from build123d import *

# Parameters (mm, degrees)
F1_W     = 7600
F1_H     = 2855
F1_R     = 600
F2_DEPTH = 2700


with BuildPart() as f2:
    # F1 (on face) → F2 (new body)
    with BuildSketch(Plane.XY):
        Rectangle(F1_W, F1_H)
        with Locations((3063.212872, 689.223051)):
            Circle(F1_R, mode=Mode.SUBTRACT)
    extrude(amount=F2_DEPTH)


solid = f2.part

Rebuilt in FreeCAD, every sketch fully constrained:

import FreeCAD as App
import Part
import Sketcher

V = App.Vector

doc = App.newDocument("Part")
body = doc.addObject("PartDesign::Body", "Body")

sketch1 = body.newObject("Sketcher::SketchObject", "Sketch")
sketch1.AttachmentSupport = (doc.getObject("XY_Plane"), [""])
sketch1.MapMode = "FlatFace"
sketch1.addGeometry([
    Part.LineSegment(V(-3800, 1427.5, 0), V(-3800, -1427.5, 0)),
    Part.LineSegment(V(-3800, -1427.5, 0), V(3800, -1427.5, 0)),
    Part.LineSegment(V(3800, -1427.5, 0), V(3800, 1427.5, 0)),
    Part.LineSegment(V(3800, 1427.5, 0), V(-3800, 1427.5, 0)),
    Part.Circle(V(3063.212872, 689.223051, 0), V(0, 0, 1), 600),
], False)
sketch1.addConstraint([
    Sketcher.Constraint("Coincident", 0, 2, 1, 1),
    Sketcher.Constraint("Coincident", 1, 2, 2, 1),
    Sketcher.Constraint("Coincident", 2, 2, 3, 1),
    Sketcher.Constraint("Coincident", 3, 2, 0, 1),
    Sketcher.Constraint("Vertical", 0),
    Sketcher.Constraint("Horizontal", 1),
    Sketcher.Constraint("Vertical", 2),
    Sketcher.Constraint("Horizontal", 3),
    Sketcher.Constraint("Symmetric", 0, 2, 2, 2, -1, 1),
    Sketcher.Constraint("Diameter", 4, 1200.0),
    Sketcher.Constraint("DistanceX", 1, 1, 1, 2, 7600.0),
    Sketcher.Constraint("DistanceY", 0, 2, 0, 1, 2855.0),
    Sketcher.Constraint("DistanceY", -1, 1, 4, 3, 689.223051),
    Sketcher.Constraint("DistanceX", 0, 2, 4, 3, 6863.212872),
])
pad1 = body.newObject("PartDesign::Pad", "Pad")
pad1.Profile = sketch1
pad1.Length = 2700

doc.recompute()
